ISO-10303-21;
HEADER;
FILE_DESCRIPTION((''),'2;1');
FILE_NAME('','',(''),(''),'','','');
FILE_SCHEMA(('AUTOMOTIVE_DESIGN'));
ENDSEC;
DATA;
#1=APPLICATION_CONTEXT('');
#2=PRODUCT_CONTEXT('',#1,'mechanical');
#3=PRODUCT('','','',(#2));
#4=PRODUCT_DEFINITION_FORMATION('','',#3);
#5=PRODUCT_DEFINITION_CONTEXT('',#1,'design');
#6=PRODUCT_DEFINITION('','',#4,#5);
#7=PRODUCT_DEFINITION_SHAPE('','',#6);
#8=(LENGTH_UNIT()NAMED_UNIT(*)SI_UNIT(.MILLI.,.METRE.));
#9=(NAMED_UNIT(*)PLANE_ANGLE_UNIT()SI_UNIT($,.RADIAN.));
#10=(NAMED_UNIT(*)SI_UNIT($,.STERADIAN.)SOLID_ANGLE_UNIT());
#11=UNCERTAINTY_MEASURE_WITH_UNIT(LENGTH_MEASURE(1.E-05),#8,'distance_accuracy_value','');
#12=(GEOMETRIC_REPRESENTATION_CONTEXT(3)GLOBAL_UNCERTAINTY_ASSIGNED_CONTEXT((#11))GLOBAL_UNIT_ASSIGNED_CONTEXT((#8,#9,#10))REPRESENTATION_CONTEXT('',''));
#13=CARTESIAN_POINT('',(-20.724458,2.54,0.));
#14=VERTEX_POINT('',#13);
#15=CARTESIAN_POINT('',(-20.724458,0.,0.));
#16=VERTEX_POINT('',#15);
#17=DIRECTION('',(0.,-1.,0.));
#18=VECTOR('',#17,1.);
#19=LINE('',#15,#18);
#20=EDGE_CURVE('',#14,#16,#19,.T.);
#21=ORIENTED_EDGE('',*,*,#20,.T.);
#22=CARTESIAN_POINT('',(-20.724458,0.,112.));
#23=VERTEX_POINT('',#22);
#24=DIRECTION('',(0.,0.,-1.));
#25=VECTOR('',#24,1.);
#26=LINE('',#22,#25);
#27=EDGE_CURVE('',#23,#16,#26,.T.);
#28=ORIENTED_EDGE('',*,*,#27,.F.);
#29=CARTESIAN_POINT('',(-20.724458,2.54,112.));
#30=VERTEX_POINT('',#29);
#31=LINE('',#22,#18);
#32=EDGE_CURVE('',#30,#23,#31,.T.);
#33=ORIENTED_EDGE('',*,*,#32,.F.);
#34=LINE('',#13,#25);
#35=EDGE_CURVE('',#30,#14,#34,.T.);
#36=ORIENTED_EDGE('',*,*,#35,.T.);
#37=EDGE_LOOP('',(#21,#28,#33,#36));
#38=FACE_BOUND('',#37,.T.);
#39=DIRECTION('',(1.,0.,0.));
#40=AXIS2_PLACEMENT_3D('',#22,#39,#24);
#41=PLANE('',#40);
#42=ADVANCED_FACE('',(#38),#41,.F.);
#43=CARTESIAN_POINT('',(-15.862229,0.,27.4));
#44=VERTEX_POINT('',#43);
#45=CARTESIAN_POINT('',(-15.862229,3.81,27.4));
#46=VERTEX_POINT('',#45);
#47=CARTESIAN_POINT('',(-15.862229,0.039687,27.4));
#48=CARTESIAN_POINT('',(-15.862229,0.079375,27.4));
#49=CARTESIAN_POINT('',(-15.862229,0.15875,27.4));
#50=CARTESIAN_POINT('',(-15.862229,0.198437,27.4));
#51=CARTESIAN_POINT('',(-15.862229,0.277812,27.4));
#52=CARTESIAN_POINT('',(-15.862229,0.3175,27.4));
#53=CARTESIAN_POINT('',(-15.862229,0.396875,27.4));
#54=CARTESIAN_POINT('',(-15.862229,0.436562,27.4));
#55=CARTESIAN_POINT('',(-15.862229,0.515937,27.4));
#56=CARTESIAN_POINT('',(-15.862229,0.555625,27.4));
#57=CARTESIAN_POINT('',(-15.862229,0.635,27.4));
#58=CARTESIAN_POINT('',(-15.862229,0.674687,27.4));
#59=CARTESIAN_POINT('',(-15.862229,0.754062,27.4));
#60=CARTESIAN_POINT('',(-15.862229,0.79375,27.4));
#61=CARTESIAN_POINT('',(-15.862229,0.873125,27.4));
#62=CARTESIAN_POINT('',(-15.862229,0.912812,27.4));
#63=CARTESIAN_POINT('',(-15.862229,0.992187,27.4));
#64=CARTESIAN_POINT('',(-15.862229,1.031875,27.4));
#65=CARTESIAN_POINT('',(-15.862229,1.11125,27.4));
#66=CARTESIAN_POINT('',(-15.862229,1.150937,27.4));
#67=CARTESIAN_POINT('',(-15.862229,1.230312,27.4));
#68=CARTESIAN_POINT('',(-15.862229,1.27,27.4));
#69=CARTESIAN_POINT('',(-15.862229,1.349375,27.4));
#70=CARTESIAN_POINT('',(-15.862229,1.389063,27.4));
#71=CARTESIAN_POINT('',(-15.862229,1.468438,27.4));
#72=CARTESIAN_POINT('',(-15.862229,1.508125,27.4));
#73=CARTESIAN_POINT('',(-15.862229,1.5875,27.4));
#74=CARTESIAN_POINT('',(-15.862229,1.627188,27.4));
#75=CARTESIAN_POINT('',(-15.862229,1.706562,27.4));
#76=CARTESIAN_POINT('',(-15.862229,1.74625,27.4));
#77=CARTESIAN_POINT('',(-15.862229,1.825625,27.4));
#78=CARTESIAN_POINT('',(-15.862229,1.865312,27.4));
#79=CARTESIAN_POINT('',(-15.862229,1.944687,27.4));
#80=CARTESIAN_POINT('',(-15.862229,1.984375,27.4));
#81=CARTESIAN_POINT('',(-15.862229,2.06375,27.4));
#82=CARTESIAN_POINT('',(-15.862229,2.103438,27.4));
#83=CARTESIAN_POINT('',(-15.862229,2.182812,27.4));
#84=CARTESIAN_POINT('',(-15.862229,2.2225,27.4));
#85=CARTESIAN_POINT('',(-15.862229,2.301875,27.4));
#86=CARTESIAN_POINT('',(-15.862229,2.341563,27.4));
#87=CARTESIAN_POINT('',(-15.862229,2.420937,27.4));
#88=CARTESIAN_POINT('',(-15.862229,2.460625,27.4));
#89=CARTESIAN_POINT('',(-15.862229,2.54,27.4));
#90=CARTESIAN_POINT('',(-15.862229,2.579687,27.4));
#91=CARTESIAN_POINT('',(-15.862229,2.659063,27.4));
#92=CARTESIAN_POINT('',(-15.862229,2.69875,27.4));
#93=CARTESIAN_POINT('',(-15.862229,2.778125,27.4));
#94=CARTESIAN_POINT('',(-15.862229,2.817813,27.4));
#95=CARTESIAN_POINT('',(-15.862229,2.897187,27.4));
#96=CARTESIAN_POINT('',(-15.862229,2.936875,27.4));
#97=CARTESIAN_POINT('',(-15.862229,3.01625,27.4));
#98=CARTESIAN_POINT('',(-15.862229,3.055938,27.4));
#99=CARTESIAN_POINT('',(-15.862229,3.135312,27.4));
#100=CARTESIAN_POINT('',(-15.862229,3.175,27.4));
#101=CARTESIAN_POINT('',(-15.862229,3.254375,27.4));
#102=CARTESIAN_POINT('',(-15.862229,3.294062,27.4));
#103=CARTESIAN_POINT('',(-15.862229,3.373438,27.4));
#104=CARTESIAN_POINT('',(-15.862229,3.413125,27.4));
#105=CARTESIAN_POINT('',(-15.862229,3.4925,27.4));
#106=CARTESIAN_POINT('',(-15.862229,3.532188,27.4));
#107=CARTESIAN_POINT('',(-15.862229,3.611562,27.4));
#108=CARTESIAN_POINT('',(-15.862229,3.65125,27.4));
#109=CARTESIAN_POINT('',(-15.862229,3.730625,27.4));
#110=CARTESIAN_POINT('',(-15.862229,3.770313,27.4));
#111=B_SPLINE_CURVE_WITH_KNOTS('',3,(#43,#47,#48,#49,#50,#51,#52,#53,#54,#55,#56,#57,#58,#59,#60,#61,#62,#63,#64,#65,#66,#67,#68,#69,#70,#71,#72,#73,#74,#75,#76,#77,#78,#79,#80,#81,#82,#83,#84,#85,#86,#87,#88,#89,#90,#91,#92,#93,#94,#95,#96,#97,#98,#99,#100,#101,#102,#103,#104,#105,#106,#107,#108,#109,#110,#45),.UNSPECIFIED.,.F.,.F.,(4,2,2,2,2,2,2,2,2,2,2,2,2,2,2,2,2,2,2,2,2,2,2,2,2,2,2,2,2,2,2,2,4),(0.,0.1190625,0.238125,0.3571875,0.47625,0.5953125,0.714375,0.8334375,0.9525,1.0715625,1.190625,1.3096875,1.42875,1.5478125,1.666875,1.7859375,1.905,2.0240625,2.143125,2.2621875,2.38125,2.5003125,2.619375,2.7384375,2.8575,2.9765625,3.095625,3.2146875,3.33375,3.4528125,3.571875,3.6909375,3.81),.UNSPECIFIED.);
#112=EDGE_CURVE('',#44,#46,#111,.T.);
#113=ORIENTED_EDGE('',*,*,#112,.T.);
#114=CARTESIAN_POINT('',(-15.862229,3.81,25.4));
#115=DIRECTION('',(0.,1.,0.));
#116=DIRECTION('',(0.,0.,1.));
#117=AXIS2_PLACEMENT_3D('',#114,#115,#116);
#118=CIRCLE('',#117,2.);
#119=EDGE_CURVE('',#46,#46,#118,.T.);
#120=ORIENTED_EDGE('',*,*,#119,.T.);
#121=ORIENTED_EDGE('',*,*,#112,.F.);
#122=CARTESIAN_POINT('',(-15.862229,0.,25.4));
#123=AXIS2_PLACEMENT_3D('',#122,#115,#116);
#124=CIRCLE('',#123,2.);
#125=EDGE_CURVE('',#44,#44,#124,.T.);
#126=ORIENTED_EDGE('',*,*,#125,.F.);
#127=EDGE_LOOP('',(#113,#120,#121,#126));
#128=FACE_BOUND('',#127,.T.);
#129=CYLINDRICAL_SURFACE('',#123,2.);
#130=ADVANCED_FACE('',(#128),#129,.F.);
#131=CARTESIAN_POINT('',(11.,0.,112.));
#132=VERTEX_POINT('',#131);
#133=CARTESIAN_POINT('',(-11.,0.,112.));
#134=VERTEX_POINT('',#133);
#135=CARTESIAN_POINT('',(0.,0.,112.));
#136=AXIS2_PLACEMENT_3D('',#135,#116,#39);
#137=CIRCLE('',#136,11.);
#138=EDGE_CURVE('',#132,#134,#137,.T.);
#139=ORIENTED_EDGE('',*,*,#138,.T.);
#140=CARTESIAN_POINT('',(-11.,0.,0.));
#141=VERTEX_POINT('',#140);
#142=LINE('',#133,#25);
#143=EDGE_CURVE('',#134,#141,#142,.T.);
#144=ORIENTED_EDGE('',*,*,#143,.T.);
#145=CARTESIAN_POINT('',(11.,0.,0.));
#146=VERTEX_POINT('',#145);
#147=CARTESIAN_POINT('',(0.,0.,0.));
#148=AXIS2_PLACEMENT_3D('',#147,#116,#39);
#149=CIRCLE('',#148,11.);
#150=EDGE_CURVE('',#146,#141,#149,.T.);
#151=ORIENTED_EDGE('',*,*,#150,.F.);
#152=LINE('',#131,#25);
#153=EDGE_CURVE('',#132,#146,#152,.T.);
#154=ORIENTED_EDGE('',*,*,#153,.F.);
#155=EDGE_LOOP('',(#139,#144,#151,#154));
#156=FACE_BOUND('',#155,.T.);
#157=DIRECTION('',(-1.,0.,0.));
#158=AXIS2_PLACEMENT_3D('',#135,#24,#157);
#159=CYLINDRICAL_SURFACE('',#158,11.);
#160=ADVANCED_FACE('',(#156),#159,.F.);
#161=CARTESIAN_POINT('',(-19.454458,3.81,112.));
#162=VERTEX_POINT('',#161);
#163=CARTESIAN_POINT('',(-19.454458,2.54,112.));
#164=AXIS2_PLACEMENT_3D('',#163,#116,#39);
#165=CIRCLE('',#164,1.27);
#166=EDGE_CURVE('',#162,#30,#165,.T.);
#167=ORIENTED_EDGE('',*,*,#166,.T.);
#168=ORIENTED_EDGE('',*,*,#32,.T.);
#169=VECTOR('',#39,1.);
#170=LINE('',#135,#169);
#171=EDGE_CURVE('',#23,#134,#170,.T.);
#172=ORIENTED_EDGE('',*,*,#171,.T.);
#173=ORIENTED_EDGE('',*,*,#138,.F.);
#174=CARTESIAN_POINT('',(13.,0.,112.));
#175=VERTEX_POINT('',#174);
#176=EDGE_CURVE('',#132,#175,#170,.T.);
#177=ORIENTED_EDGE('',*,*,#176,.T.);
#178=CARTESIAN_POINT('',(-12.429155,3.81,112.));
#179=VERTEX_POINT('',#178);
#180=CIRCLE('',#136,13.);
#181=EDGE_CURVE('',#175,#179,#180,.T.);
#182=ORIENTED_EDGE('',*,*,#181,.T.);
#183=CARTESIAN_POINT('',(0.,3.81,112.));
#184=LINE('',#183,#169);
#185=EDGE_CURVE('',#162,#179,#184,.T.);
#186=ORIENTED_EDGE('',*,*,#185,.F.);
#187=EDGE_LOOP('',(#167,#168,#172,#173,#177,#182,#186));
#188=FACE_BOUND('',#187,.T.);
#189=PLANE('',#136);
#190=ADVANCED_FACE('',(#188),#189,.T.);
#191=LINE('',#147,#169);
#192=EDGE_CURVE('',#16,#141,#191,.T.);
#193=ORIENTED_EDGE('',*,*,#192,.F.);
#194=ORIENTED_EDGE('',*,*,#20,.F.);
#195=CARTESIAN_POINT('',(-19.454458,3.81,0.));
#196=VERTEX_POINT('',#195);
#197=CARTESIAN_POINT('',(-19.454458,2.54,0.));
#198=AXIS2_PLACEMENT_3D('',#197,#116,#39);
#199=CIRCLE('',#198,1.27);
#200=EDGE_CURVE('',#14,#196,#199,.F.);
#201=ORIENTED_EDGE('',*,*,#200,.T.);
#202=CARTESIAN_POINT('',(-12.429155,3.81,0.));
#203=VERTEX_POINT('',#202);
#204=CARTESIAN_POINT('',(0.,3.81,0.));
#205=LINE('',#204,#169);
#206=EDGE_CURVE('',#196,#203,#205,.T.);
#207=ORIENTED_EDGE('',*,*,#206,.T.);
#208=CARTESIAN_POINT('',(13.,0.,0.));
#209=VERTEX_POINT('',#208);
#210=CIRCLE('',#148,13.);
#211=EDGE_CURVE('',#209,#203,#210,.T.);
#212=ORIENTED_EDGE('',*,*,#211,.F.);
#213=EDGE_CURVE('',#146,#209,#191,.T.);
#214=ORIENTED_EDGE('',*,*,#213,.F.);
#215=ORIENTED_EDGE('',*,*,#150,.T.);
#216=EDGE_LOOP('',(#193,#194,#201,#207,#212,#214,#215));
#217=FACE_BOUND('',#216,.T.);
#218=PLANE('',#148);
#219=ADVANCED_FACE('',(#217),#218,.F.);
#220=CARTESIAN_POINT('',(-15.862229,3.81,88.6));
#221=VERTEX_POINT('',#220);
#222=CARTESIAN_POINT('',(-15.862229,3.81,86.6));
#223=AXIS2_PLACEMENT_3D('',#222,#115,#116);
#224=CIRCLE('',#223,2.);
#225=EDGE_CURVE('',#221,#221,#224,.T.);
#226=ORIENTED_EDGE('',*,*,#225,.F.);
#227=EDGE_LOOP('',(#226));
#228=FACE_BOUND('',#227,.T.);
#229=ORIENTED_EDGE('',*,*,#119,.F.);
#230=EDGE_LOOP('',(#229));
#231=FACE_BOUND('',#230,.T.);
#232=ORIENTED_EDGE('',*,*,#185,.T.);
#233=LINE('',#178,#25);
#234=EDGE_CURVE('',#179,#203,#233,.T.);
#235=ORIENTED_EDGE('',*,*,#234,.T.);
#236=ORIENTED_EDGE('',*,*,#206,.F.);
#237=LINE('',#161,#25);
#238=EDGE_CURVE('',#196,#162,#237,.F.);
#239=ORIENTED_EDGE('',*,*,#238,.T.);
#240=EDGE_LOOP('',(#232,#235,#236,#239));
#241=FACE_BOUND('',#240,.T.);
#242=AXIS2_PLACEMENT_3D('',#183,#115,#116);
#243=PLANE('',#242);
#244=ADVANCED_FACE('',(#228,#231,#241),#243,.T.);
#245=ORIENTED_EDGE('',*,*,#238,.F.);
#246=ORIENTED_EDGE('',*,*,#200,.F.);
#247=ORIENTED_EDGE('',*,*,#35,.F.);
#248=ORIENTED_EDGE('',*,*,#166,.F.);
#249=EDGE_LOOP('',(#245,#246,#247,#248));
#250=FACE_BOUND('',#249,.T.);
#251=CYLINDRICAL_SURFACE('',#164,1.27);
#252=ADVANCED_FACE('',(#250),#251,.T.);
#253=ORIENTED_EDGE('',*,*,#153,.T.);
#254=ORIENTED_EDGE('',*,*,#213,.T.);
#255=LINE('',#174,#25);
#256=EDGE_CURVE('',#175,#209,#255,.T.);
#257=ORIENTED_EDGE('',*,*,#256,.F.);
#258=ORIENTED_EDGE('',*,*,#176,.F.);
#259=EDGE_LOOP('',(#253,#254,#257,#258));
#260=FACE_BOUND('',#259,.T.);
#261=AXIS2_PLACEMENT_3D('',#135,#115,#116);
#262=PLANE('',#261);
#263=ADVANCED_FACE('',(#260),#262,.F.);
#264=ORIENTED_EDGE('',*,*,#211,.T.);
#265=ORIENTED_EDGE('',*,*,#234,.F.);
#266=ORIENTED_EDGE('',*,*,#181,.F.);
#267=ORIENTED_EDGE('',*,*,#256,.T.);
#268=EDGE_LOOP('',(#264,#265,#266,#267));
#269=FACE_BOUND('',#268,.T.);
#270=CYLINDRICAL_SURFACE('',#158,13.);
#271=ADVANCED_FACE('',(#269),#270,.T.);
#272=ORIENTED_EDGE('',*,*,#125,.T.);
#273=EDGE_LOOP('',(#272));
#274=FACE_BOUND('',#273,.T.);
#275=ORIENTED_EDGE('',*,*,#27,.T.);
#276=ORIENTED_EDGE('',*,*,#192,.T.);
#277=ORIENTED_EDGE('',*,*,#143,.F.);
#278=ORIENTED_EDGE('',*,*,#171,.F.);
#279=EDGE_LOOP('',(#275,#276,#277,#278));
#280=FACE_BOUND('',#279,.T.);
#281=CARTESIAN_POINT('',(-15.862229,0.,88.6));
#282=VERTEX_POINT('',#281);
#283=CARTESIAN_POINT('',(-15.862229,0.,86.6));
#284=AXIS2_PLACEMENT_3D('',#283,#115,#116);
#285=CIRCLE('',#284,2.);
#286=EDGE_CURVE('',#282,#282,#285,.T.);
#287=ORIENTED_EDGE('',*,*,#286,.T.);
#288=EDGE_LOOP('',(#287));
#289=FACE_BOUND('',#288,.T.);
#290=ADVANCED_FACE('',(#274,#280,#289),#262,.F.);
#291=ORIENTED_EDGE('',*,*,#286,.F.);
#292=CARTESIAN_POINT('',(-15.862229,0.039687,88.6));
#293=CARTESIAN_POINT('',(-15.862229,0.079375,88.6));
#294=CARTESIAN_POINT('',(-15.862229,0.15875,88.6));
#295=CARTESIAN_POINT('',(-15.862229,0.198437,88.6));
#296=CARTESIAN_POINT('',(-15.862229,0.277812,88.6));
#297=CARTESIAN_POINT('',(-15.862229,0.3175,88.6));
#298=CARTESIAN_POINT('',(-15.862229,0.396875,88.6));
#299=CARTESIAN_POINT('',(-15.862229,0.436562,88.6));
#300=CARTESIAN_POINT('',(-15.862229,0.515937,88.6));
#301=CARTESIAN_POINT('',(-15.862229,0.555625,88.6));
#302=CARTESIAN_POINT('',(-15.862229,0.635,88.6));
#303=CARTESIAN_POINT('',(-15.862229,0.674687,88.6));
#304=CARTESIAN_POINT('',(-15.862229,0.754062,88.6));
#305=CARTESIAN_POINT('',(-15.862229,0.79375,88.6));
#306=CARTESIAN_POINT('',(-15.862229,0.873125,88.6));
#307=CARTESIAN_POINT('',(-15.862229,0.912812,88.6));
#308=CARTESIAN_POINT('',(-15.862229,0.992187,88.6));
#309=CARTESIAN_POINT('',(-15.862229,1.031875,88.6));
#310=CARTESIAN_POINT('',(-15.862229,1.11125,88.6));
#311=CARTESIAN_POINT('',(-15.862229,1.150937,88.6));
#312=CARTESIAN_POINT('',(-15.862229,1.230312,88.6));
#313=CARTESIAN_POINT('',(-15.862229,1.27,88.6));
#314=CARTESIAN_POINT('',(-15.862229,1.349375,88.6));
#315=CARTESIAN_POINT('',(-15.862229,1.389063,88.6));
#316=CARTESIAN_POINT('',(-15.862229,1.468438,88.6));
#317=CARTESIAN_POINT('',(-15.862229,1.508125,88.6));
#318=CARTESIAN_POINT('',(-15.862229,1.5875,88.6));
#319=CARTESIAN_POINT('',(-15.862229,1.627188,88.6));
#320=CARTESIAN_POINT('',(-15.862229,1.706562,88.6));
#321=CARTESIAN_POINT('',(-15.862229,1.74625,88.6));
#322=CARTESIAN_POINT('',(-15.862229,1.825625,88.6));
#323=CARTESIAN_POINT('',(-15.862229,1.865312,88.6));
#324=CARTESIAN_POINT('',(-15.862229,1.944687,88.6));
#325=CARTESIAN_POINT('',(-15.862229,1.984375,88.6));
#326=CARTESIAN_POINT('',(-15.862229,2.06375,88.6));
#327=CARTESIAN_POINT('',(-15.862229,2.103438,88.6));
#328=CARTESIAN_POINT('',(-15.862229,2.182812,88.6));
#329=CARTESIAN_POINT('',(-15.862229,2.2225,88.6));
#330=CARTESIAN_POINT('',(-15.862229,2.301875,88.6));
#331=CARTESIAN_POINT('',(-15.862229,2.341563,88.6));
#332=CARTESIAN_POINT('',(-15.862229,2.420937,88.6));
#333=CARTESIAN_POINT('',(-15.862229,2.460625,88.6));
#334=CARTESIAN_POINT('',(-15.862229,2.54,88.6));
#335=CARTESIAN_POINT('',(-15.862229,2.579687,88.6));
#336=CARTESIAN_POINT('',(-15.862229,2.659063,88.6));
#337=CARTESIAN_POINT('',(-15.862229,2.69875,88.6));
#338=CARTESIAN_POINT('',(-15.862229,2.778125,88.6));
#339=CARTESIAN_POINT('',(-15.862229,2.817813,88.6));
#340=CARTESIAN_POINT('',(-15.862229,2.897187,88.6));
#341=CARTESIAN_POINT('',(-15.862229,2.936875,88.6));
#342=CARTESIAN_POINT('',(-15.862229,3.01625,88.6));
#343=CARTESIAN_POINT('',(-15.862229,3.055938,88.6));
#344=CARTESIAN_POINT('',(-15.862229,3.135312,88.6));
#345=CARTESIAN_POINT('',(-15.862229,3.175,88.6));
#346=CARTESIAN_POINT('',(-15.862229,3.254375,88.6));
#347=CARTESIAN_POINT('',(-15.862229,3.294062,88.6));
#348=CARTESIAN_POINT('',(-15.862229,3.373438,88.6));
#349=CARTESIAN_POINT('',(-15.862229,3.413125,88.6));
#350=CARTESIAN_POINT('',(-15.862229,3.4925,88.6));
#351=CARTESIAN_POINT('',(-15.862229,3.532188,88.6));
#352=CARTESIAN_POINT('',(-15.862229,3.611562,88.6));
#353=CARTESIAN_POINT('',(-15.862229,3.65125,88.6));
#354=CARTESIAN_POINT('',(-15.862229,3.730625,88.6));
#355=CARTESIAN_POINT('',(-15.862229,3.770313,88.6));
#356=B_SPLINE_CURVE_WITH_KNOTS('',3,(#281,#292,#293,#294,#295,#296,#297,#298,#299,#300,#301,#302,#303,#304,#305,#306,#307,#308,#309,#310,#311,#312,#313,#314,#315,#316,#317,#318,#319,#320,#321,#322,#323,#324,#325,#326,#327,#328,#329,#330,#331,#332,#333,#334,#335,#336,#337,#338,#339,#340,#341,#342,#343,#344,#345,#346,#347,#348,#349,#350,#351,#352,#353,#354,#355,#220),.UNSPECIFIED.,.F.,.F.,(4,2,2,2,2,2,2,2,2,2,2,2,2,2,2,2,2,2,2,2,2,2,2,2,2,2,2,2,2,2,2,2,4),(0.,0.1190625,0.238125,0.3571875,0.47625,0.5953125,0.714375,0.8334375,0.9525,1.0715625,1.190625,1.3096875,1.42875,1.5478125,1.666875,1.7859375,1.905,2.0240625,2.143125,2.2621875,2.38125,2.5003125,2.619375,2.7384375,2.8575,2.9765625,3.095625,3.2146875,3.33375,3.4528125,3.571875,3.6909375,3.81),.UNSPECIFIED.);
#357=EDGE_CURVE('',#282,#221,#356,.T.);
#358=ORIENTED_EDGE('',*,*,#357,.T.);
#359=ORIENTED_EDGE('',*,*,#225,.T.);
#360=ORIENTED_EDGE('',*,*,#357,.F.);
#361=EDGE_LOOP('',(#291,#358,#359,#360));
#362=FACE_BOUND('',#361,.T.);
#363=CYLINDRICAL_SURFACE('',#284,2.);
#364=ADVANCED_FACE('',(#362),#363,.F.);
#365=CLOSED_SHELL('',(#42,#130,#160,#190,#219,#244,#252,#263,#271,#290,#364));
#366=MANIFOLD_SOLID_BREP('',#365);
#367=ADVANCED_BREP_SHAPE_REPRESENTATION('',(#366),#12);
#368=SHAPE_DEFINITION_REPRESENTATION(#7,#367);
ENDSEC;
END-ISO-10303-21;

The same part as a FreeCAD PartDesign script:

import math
import FreeCAD as App
import Part
import Sketcher


def edges_at(feature, points):
    """Names of the edges that pass closest to the given points."""
    edges = feature.Shape.Edges
    near = lambda p: min(range(len(edges)), key=lambda i: edges[i].distToShape(Part.Vertex(*p))[0])
    return sorted({f"Edge{near(p) + 1}" for p in points})

doc = App.newDocument("Part")
body = doc.addObject("PartDesign::Body", "Body")

# Sketch on XY plane
sketch1 = body.newObject("Sketcher::SketchObject", "Sketch")
sketch1.AttachmentSupport = (doc.getObject("XY_Plane"), [""])
sketch1.MapMode = "FlatFace"
sketch1.addGeometry(Part.ArcOfCircle(Part.Circle(App.Vector(0, 0, 0), App.Vector(0, 0, 1), 11), math.radians(0), math.radians(180)), False)
sketch1.addGeometry(Part.LineSegment(App.Vector(11, 0, 0), App.Vector(13, 0, 0)), False)
sketch1.addGeometry(Part.ArcOfCircle(Part.Circle(App.Vector(0, 0, 0), App.Vector(0, 0, 1), 13), math.radians(0), math.radians(90)), False)
sketch1.addGeometry(Part.ArcOfCircle(Part.Circle(App.Vector(0, 0, 0), App.Vector(0, 0, 1), 13), math.radians(90), math.radians(163)), False)
sketch1.addGeometry(Part.LineSegment(App.Vector(-12.4, 3.8, 0), App.Vector(-20.7, 3.8, 0)), False)
sketch1.addGeometry(Part.LineSegment(App.Vector(-20.7, 3.8, 0), App.Vector(-20.7, 0, 0)), False)
sketch1.addGeometry(Part.LineSegment(App.Vector(-20.7, 0, 0), App.Vector(-11, 0, 0)), False)
sketch1.addConstraint(Sketcher.Constraint("Coincident", 0, 1, 1, 1))
sketch1.addConstraint(Sketcher.Constraint("Coincident", 1, 2, 2, 1))
sketch1.addConstraint(Sketcher.Constraint("Tangent", 2, 2, 3, 1))
sketch1.addConstraint(Sketcher.Constraint("Coincident", 3, 2, 4, 1))
sketch1.addConstraint(Sketcher.Constraint("Coincident", 4, 2, 5, 1))
sketch1.addConstraint(Sketcher.Constraint("Coincident", 5, 2, 6, 1))
sketch1.addConstraint(Sketcher.Constraint("Coincident", 6, 2, 0, 2))
sketch1.addConstraint(Sketcher.Constraint("Horizontal", 1))
sketch1.addConstraint(Sketcher.Constraint("Horizontal", 4))
sketch1.addConstraint(Sketcher.Constraint("Vertical", 5))
sketch1.addConstraint(Sketcher.Constraint("Horizontal", 6))
sketch1.addConstraint(Sketcher.Constraint("Coincident", 0, 3, -1, 1))
sketch1.addConstraint(Sketcher.Constraint("Coincident", 2, 3, -1, 1))
sketch1.addConstraint(Sketcher.Constraint("Equal", 2, 3))
sketch1.addConstraint(Sketcher.Constraint("PointOnObject", 0, 1, -1))
sketch1.addConstraint(Sketcher.Constraint("PointOnObject", 2, 2, -2))
sketch1.addConstraint(Sketcher.Constraint("PointOnObject", 5, 2, -1))
sketch1.addConstraint(Sketcher.Constraint("Radius", 0, 11.0))
sketch1.addConstraint(Sketcher.Constraint("Radius", 2, 13.0))
sketch1.addConstraint(Sketcher.Constraint("DistanceY", 5, 2, 5, 1, 3.81))
sketch1.addConstraint(Sketcher.Constraint("DistanceX", 4, 2, 4, 1, 8.295303))
pad1 = body.newObject("PartDesign::Pad", "Pad")
pad1.Profile = sketch1
pad1.Length = 112

# Sketch on XZ plane
sketch2 = body.newObject("Sketcher::SketchObject", "Sketch001")
sketch2.AttachmentSupport = (doc.getObject("XZ_Plane"), [""])
sketch2.MapMode = "FlatFace"
sketch2.AttachmentOffset = App.Placement(App.Vector(0, 0, -3.81), App.Rotation())
sketch2.addGeometry(Part.Circle(App.Vector(-15.9, 25.4, 0), App.Vector(0, 0, 1), 2), False)
sketch2.addGeometry(Part.Circle(App.Vector(-15.9, 86.6, 0), App.Vector(0, 0, 1), 2), False)
sketch2.addConstraint(Sketcher.Constraint("Equal", 0, 1))
sketch2.addConstraint(Sketcher.Constraint("Vertical", 0, 3, 1, 3))
sketch2.addConstraint(Sketcher.Constraint("Diameter", 0, 4.0))
sketch2.addConstraint(Sketcher.Constraint("DistanceY", -1, 1, 0, 3, 25.4))
sketch2.addConstraint(Sketcher.Constraint("DistanceY", -1, 1, 1, 3, 86.6))
sketch2.addConstraint(Sketcher.Constraint("DistanceX", 0, 3, -1, 1, 15.862229))
pocket1 = body.newObject("PartDesign::Pocket", "Pocket")
pocket1.Profile = sketch2
pocket1.Type = "ThroughAll"
pocket1.Reversed = True
doc.recompute()

fillet = body.newObject("PartDesign::Fillet", "Fillet")
fillet.Base = (pocket1, edges_at(pocket1, [(-20.724, 3.81, 56)]))
fillet.Radius = 1.27

doc.recompute()
